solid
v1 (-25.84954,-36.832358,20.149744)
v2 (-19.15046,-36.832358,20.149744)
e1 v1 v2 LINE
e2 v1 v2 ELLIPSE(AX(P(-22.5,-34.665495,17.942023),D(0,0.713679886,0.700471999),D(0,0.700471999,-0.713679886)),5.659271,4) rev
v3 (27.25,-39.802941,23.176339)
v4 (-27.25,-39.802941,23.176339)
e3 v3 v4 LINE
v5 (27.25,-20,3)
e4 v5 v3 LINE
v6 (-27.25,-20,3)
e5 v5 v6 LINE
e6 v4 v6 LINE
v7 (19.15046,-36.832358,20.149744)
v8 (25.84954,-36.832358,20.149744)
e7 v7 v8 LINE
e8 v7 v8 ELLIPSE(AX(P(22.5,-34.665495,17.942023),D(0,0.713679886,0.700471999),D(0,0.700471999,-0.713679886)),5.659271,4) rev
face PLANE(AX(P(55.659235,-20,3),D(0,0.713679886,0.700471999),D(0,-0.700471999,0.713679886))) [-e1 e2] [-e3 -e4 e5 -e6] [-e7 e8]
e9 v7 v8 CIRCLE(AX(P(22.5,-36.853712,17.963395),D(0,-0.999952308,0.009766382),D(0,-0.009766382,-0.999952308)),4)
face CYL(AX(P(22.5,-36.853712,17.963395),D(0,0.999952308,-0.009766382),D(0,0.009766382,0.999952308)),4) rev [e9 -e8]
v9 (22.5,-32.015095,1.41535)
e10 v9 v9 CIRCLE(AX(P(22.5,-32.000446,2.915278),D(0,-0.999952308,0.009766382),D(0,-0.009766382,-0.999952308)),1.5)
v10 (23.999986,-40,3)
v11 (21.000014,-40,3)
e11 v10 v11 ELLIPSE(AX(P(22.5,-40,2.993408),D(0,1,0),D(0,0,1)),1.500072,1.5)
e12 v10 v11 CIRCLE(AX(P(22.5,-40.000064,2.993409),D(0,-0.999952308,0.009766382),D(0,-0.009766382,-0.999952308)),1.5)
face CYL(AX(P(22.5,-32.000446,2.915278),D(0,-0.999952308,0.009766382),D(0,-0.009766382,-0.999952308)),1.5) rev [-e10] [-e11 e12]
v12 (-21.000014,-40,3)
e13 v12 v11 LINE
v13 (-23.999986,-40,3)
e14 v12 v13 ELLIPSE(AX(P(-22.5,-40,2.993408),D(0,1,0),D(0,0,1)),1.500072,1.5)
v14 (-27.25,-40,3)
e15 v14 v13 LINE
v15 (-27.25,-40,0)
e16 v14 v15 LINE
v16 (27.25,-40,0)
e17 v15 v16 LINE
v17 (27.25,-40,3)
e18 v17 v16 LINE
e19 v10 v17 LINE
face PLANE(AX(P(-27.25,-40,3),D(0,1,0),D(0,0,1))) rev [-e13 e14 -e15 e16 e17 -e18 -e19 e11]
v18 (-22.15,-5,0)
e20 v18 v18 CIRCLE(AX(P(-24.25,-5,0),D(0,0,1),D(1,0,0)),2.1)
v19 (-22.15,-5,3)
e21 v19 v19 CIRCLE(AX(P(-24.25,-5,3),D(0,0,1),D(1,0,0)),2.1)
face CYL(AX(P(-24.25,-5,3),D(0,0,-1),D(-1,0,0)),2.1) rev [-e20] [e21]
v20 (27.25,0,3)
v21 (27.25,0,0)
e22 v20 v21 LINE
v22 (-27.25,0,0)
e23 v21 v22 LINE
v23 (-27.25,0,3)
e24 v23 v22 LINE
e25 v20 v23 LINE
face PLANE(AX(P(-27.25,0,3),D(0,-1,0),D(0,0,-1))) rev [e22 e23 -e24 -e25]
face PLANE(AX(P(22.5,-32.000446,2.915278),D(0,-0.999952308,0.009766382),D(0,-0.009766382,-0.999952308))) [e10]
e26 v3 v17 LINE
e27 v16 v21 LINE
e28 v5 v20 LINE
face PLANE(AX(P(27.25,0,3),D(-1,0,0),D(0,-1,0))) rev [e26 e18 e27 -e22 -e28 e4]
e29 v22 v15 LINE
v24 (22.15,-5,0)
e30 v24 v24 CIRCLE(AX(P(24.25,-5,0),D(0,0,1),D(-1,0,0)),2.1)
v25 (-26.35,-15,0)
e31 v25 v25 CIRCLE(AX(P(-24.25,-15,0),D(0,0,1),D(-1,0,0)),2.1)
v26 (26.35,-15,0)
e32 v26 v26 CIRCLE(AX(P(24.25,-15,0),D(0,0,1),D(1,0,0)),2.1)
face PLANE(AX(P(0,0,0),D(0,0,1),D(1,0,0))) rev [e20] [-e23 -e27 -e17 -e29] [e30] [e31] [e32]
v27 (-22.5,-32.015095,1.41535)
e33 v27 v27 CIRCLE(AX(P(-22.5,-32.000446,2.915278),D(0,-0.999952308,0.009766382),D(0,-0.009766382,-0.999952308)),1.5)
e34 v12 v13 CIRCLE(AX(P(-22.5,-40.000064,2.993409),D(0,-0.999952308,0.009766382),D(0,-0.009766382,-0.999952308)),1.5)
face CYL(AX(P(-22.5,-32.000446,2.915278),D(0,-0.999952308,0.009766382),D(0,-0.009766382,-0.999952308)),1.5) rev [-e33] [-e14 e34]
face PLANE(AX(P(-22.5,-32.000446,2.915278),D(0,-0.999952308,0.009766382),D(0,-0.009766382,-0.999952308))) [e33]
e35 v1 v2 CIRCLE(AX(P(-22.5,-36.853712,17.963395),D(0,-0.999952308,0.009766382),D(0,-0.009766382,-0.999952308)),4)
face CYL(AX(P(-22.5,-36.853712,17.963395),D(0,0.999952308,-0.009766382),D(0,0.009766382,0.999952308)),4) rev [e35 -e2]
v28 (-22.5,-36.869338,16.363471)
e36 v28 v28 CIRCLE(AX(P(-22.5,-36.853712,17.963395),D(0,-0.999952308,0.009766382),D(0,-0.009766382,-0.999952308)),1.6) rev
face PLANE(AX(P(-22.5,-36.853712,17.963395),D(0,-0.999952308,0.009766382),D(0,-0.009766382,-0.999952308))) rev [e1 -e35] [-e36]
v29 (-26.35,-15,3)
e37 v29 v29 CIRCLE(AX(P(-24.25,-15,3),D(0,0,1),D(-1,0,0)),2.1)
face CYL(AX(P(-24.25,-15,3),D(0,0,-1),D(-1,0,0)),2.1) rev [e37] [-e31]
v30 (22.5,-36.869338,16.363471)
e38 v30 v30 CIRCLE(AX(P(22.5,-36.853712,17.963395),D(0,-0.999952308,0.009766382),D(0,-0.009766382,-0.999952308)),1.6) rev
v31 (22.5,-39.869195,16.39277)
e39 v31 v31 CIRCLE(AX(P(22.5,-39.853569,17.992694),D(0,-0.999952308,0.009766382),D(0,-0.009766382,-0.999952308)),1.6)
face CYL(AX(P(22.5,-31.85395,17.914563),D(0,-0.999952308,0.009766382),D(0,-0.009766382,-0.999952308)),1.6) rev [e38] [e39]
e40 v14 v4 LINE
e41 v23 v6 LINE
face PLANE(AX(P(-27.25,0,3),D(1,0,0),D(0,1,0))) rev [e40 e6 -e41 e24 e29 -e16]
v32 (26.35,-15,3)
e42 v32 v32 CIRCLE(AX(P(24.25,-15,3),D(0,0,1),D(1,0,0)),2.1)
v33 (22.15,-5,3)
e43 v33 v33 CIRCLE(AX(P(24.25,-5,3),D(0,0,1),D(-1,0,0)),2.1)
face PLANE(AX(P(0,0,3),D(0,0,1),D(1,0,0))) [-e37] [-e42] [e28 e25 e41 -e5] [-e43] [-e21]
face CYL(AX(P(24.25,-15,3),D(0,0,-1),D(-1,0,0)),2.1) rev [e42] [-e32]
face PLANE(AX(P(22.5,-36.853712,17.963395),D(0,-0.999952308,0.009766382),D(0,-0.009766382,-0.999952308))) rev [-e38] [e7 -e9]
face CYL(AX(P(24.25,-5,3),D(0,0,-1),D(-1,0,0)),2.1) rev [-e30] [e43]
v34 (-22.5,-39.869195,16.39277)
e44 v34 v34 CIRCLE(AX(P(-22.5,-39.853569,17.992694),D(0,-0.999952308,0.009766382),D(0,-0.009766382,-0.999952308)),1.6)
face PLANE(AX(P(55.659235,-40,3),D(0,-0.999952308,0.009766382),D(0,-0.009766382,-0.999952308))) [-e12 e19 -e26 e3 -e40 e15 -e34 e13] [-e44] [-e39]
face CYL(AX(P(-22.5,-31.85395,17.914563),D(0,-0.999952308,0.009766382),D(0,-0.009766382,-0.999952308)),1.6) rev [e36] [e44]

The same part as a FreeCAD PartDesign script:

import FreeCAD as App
import Part
import Sketcher


def add_polygon(sketch, points):
    """Adds a closed chain of lines whose ends are joined by coincident constraints."""
    first, n = sketch.GeometryCount, len(points)
    for a, b in zip(points, points[1:] + points[:1]):
        sketch.addGeometry(Part.LineSegment(App.Vector(*a, 0), App.Vector(*b, 0)), False)
    for i in range(n):
        sketch.addConstraint(Sketcher.Constraint("Coincident", first + i, 2, first + (i + 1) % n, 1))

doc = App.newDocument("Part")
params = doc.addObject("Spreadsheet::Sheet", "Params")
for row, (alias, value) in enumerate([
    ("sketch1_diameter", "4.2 mm"),
    ("sketch1_height", "40 mm"),
    ("sketch1_width", "54.5 mm"),
    ("pad1_length", "3 mm"),
    ("sketch2_width", "20 mm"),
    ("pad2_length", "54.5 mm"),
    ("sketch3_diameter", "3 mm"),
    ("sketch3_diameter2", "3.2 mm"),
    ("pocket1_length", "8 mm"),
    ("sketch4_diameter", "8 mm"),
    ("pocket2_length", "7 mm"),
], start=1):
    params.set(f"A{row}", alias)
    params.set(f"B{row}", "=" + value)
    params.setAlias(f"B{row}", alias)

body = doc.addObject("PartDesign::Body", "Body")

# Sketch on XY plane
sketch1 = body.newObject("Sketcher::SketchObject", "Sketch")
sketch1.AttachmentSupport = (doc.getObject("XY_Plane"), [""])
sketch1.MapMode = "FlatFace"
add_polygon(sketch1, [(-27.2, 0), (-27.2, -40), (27.2, -40), (27.2, 0)])  # lines 0-3
sketch1.addGeometry(Part.Circle(App.Vector(-24.2, -15, 0), App.Vector(0, 0, 1), 2.1), False)  # 4
sketch1.addGeometry(Part.Circle(App.Vector(24.2, -15, 0), App.Vector(0, 0, 1), 2.1), False)  # 5
sketch1.addGeometry(Part.Circle(App.Vector(-24.2, -5, 0), App.Vector(0, 0, 1), 2.1), False)  # 6
sketch1.addGeometry(Part.Circle(App.Vector(24.2, -5, 0), App.Vector(0, 0, 1), 2.1), False)  # 7
sketch1.addConstraint([
    Sketcher.Constraint("Vertical", 0),
    Sketcher.Constraint("Horizontal", 1),
    Sketcher.Constraint("Vertical", 2),
    Sketcher.Constraint("Horizontal", 3),
    Sketcher.Constraint("Equal", 4, 5),
    Sketcher.Constraint("Equal", 5, 6),
    Sketcher.Constraint("Equal", 6, 7),
    Sketcher.Constraint("Symmetric", 2, 2, 3, 2, -1, 1),
    Sketcher.Constraint("Symmetric", 4, 3, 5, 3, -2),
    Sketcher.Constraint("Symmetric", 6, 3, 7, 3, -2),
    Sketcher.Constraint("Vertical", 4, 3, 6, 3),
    Sketcher.Constraint("Diameter", 4, 4.2),
    Sketcher.Constraint("DistanceY", 0, 2, 0, 1, 40.0),
    Sketcher.Constraint("DistanceX", 1, 1, 1, 2, 54.5),
    Sketcher.Constraint("DistanceY", 4, 3, -1, 1, 15.0),
    Sketcher.Constraint("DistanceY", 6, 3, -1, 1, 5.0),
    Sketcher.Constraint("DistanceX", 0, 2, 4, 3, 3.0),
])
sketch1.setExpression("Constraints[15]", "Params.sketch1_diameter")
sketch1.setExpression("Constraints[16]", "Params.sketch1_height")
sketch1.setExpression("Constraints[17]", "Params.sketch1_width")
pad1 = body.newObject("PartDesign::Pad", "Pad")
pad1.Profile = sketch1
pad1.setExpression("Length", "Params.pad1_length")

# Sketch on YZ plane
sketch2 = body.newObject("Sketcher::SketchObject", "Sketch001")
sketch2.AttachmentSupport = (doc.getObject("YZ_Plane"), [""])
sketch2.MapMode = "FlatFace"
sketch2.AttachmentOffset = App.Placement(App.Vector(0, 0, -27.25), App.Rotation())
add_polygon(sketch2, [(-40, 23), (-20, 3), (-40, 3)])  # lines 0-2
sketch2.addConstraint([
    Sketcher.Constraint("Horizontal", 1),
    Sketcher.Constraint("DistanceX", 1, 2, 1, 1, 20.0),
    Sketcher.Constraint("DistanceX", 0, 2, -1, 1, 20.0),
    Sketcher.Constraint("DistanceY", -1, 1, 0, 2, 3.0),
    Sketcher.Constraint("Distance", 2, 20.177301),
    Sketcher.Constraint("DistanceX", 2, 2, -1, 1, 39.802941),
])
sketch2.setExpression("Constraints[4]", "Params.sketch2_width")
pad2 = body.newObject("PartDesign::Pad", "Pad001")
pad2.Profile = sketch2
pad2.setExpression("Length", "Params.pad2_length")

# Sketch on an angled plane
sketch3 = body.newObject("Sketcher::SketchObject", "Sketch002")
sketch3.Placement = App.Placement(App.Vector(0, -40.025482, 0.390923), App.Rotation(App.Vector(1, 0, 0), App.Vector(0, 0.009766382, 0.999952308), App.Vector(0, -0.999952308, 0.009766382), "ZXY"))
sketch3.addGeometry([
    Part.Circle(App.Vector(-22.5, 2.6, 0), App.Vector(0, 0, 1), 1.5),
    Part.Circle(App.Vector(-22.5, 17.6, 0), App.Vector(0, 0, 1), 1.6),
    Part.Circle(App.Vector(22.5, 17.6, 0), App.Vector(0, 0, 1), 1.6),
    Part.Circle(App.Vector(22.5, 2.6, 0), App.Vector(0, 0, 1), 1.5),
], False)
sketch3.addConstraint([
    Sketcher.Constraint("Equal", 1, 2),
    Sketcher.Constraint("Equal", 0, 3),
    Sketcher.Constraint("Symmetric", 1, 3, 2, 3, -2),
    Sketcher.Constraint("Symmetric", 0, 3, 3, 3, -2),
    Sketcher.Constraint("Vertical", 0, 3, 1, 3),
    Sketcher.Constraint("Diameter", 0, 3.0),
    Sketcher.Constraint("Diameter", 1, 3.2),
    Sketcher.Constraint("DistanceY", 0, 3, 1, 3, 15.0),
    Sketcher.Constraint("DistanceX", 1, 3, 2, 3, 45.0),
    Sketcher.Constraint("DistanceY", -1, 1, 0, 3, 2.60261),
])
sketch3.setExpression("Constraints[5]", "Params.sketch3_diameter")
sketch3.setExpression("Constraints[6]", "Params.sketch3_diameter2")
pocket1 = body.newObject("PartDesign::Pocket", "Pocket")
pocket1.Profile = sketch3
pocket1.setExpression("Length", "Params.pocket1_length")

# Sketch on an angled plane
sketch4 = body.newObject("Sketcher::SketchObject", "Sketch003")
sketch4.Placement = App.Placement(App.Vector(0, -30.025959, 0.293259), App.Rotation(App.Vector(1, 0, 0), App.Vector(0, 0.009766382, 0.999952308), App.Vector(0, -0.999952308, 0.009766382), "ZXY"))
sketch4.addGeometry([
    Part.Circle(App.Vector(-22.5, 17.6, 0), App.Vector(0, 0, 1), 4),
    Part.Circle(App.Vector(22.5, 17.6, 0), App.Vector(0, 0, 1), 4),
], False)
sketch4.addConstraint([
    Sketcher.Constraint("Equal", 0, 1),
    Sketcher.Constraint("Symmetric", 0, 3, 1, 3, -2),
    Sketcher.Constraint("Diameter", 0, 8.0),
    Sketcher.Constraint("DistanceX", 0, 3, 1, 3, 45.0),
    Sketcher.Constraint("DistanceY", -1, 1, 0, 3, 17.60261),
])
sketch4.setExpression("Constraints[2]", "Params.sketch4_diameter")
pocket2 = body.newObject("PartDesign::Pocket", "Pocket001")
pocket2.Profile = sketch4
pocket2.setExpression("Length", "Params.pocket2_length")
pocket2.Reversed = True

doc.recompute()
